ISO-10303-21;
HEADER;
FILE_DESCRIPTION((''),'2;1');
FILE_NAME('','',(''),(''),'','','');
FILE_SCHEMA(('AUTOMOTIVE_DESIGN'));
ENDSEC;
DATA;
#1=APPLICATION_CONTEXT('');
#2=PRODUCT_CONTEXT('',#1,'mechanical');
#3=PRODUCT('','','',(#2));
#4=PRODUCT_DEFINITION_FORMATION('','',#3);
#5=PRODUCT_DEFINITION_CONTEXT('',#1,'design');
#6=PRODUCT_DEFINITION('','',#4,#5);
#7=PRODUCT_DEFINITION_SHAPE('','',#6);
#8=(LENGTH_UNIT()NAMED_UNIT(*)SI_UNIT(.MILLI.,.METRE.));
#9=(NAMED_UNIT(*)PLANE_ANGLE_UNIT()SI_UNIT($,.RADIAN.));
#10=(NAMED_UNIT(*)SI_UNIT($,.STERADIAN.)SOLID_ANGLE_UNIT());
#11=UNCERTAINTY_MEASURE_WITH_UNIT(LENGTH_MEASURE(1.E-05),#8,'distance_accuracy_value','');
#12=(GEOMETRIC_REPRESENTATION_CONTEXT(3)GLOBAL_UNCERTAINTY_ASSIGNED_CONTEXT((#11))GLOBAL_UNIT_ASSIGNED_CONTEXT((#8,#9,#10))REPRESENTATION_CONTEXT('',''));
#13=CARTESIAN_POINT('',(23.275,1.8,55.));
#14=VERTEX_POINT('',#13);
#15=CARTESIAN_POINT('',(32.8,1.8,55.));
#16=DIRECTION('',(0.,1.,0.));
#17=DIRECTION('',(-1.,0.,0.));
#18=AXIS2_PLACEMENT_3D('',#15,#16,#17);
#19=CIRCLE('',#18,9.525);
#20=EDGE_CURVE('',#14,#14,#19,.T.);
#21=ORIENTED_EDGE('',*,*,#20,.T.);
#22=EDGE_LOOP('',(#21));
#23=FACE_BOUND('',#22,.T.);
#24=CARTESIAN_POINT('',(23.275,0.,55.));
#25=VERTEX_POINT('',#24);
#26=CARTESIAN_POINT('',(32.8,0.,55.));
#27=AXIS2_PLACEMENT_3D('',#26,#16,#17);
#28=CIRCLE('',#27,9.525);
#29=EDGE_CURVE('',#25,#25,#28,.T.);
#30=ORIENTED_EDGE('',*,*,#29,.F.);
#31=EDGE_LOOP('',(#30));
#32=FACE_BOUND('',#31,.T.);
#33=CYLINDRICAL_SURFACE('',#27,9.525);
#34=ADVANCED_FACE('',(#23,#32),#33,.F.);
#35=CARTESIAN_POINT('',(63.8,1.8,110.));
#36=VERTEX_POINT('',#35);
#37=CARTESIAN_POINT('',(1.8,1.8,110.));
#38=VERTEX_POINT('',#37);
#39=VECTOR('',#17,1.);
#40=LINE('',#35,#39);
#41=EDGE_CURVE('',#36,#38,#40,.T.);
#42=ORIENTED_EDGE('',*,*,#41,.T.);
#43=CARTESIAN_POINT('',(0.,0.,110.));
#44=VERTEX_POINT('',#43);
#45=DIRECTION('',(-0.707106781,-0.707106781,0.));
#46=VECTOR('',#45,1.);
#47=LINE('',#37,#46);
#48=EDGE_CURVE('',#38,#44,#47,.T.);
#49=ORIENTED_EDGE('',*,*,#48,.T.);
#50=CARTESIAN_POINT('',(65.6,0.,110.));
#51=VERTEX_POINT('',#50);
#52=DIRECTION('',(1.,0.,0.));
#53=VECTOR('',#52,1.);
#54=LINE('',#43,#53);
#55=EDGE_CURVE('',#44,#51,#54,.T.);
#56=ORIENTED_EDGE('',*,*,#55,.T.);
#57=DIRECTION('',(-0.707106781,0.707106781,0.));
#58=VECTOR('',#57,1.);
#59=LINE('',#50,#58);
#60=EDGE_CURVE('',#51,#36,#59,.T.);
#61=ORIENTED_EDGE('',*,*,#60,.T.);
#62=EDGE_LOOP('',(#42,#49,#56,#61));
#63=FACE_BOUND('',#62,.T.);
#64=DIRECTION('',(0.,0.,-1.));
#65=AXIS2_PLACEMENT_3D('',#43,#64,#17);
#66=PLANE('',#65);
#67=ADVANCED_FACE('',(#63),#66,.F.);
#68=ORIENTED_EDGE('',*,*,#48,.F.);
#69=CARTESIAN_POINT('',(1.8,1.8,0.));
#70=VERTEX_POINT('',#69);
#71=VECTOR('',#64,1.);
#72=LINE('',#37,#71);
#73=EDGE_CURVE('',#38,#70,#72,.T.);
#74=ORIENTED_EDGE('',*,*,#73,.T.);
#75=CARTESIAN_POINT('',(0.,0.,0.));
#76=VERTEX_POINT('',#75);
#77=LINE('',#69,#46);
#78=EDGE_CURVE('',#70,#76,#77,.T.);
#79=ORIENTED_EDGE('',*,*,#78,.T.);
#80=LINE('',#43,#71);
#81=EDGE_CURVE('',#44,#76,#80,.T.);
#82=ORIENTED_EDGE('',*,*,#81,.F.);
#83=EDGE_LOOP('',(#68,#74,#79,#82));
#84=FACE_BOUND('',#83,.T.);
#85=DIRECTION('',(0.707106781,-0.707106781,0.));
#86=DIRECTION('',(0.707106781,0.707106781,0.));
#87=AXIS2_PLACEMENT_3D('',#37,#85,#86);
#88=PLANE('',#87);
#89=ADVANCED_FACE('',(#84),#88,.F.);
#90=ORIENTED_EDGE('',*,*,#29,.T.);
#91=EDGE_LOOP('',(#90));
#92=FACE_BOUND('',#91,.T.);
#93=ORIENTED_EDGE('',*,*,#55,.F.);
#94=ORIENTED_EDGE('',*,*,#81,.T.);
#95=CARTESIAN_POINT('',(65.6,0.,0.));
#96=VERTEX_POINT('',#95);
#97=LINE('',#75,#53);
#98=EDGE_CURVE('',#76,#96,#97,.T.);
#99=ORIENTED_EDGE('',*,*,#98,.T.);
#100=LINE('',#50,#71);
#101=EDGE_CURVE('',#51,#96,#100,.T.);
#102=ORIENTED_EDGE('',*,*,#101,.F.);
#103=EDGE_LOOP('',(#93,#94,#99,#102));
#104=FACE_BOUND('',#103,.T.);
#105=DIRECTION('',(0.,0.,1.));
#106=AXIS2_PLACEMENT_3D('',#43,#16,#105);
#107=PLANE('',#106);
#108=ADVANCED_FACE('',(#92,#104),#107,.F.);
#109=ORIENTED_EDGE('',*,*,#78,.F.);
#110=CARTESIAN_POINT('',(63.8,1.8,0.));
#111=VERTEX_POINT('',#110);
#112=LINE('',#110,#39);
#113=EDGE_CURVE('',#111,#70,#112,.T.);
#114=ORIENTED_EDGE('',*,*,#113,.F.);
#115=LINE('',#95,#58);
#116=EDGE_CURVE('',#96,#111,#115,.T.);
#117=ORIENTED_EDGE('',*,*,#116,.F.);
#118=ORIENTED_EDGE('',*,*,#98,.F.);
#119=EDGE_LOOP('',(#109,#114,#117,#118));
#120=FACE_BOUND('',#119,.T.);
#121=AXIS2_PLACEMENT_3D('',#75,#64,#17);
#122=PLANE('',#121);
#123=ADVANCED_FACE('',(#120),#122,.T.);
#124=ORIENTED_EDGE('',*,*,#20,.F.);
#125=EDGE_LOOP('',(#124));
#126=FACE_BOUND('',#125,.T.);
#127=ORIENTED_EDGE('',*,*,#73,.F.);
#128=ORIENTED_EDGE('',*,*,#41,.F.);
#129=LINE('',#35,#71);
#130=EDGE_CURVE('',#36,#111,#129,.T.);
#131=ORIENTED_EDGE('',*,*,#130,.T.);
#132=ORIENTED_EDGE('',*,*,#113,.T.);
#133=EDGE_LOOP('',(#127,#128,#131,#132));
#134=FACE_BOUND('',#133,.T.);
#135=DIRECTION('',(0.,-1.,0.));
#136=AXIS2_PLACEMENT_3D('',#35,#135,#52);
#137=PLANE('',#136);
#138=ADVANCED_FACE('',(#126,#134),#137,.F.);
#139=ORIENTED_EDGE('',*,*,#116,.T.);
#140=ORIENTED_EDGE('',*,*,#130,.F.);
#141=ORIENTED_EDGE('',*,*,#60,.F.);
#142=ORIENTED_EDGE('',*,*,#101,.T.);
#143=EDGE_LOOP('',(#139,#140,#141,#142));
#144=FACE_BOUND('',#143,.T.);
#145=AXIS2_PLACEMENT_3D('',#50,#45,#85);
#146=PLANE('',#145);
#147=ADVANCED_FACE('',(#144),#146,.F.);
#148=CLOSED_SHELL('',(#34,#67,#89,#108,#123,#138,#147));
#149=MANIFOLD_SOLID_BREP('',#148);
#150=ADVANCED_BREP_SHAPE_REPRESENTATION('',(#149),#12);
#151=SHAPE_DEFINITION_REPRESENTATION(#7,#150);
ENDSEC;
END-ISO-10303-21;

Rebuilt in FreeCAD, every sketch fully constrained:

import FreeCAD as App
import Part
import Sketcher
Q = App.Units.Quantity

doc = App.newDocument("Part")
params = doc.addObject("Spreadsheet::Sheet", "Params")
for row, (alias, value) in enumerate([
    ("sketch1_width", "62 mm"),
    ("sketch1_width2", "65.6 mm"),
    ("pad1_length", "110 mm"),
    ("sketch2_diameter", "19.05 mm"),
], start=1):
    params.set(f"A{row}", alias)
    params.set(f"B{row}", "=" + value)
    params.setAlias(f"B{row}", alias)

body = doc.addObject("PartDesign::Body", "Body")

sketch1 = body.newObject("Sketcher::SketchObject", "Sketch")
sketch1.AttachmentSupport = (doc.getObject("XY_Plane"), [""])
sketch1.MapMode = "FlatFace"
sketch1.addGeometry([
    Part.LineSegment(App.Vector(0, 0, 0), App.Vector(65.6, 0, 0)),
    Part.LineSegment(App.Vector(65.6, 0, 0), App.Vector(63.8, 1.8, 0)),
    Part.LineSegment(App.Vector(63.8, 1.8, 0), App.Vector(1.8, 1.8, 0)),
    Part.LineSegment(App.Vector(1.8, 1.8, 0), App.Vector(0, 0, 0)),
], False)
sketch1.addConstraint([
    Sketcher.Constraint("Coincident", 0, 2, 1, 1),
    Sketcher.Constraint("Coincident", 1, 2, 2, 1),
    Sketcher.Constraint("Coincident", 2, 2, 3, 1),
    Sketcher.Constraint("Coincident", 3, 2, 0, 1),
    Sketcher.Constraint("Horizontal", 0),
    Sketcher.Constraint("Horizontal", 2),
    Sketcher.Constraint("Coincident", 3, 2, -1, 1),
    Sketcher.Constraint("Perpendicular", 1, 3),
    Sketcher.Constraint("Equal", 1, 3),
    Sketcher.Constraint("DistanceX", 2, 2, 2, 1, Q("62 mm")),
    Sketcher.Constraint("DistanceX", 0, 1, 0, 2, Q("65.6 mm")),
])
sketch1.setExpression("Constraints[9]", "Params.sketch1_width")
sketch1.setExpression("Constraints[10]", "Params.sketch1_width2")
pad1 = body.newObject("PartDesign::Pad", "Pad")
pad1.Profile = sketch1
pad1.setExpression("Length", "Params.pad1_length")

sketch2 = body.newObject("Sketcher::SketchObject", "Sketch001")
sketch2.AttachmentSupport = (doc.getObject("XZ_Plane"), [""])
sketch2.MapMode = "FlatFace"
sketch2.AttachmentOffset = App.Placement(App.Vector(0, 0, -1.8), App.Rotation())
sketch2.addGeometry(Part.Circle(App.Vector(33, 55, 0), App.Vector(0, 0, 1), 10), False)
sketch2.addConstraint([
    Sketcher.Constraint("Diameter", 0, Q("19.05 mm")),
    Sketcher.Constraint("DistanceY", -1, 1, 0, 3, Q("55 mm")),
    Sketcher.Constraint("DistanceX", -1, 1, 0, 3, Q("32.8 mm")),
])
sketch2.setExpression("Constraints[0]", "Params.sketch2_diameter")
pocket1 = body.newObject("PartDesign::Pocket", "Pocket")
pocket1.Profile = sketch2
pocket1.Type = "ThroughAll"
pocket1.Reversed = True

doc.recompute()
